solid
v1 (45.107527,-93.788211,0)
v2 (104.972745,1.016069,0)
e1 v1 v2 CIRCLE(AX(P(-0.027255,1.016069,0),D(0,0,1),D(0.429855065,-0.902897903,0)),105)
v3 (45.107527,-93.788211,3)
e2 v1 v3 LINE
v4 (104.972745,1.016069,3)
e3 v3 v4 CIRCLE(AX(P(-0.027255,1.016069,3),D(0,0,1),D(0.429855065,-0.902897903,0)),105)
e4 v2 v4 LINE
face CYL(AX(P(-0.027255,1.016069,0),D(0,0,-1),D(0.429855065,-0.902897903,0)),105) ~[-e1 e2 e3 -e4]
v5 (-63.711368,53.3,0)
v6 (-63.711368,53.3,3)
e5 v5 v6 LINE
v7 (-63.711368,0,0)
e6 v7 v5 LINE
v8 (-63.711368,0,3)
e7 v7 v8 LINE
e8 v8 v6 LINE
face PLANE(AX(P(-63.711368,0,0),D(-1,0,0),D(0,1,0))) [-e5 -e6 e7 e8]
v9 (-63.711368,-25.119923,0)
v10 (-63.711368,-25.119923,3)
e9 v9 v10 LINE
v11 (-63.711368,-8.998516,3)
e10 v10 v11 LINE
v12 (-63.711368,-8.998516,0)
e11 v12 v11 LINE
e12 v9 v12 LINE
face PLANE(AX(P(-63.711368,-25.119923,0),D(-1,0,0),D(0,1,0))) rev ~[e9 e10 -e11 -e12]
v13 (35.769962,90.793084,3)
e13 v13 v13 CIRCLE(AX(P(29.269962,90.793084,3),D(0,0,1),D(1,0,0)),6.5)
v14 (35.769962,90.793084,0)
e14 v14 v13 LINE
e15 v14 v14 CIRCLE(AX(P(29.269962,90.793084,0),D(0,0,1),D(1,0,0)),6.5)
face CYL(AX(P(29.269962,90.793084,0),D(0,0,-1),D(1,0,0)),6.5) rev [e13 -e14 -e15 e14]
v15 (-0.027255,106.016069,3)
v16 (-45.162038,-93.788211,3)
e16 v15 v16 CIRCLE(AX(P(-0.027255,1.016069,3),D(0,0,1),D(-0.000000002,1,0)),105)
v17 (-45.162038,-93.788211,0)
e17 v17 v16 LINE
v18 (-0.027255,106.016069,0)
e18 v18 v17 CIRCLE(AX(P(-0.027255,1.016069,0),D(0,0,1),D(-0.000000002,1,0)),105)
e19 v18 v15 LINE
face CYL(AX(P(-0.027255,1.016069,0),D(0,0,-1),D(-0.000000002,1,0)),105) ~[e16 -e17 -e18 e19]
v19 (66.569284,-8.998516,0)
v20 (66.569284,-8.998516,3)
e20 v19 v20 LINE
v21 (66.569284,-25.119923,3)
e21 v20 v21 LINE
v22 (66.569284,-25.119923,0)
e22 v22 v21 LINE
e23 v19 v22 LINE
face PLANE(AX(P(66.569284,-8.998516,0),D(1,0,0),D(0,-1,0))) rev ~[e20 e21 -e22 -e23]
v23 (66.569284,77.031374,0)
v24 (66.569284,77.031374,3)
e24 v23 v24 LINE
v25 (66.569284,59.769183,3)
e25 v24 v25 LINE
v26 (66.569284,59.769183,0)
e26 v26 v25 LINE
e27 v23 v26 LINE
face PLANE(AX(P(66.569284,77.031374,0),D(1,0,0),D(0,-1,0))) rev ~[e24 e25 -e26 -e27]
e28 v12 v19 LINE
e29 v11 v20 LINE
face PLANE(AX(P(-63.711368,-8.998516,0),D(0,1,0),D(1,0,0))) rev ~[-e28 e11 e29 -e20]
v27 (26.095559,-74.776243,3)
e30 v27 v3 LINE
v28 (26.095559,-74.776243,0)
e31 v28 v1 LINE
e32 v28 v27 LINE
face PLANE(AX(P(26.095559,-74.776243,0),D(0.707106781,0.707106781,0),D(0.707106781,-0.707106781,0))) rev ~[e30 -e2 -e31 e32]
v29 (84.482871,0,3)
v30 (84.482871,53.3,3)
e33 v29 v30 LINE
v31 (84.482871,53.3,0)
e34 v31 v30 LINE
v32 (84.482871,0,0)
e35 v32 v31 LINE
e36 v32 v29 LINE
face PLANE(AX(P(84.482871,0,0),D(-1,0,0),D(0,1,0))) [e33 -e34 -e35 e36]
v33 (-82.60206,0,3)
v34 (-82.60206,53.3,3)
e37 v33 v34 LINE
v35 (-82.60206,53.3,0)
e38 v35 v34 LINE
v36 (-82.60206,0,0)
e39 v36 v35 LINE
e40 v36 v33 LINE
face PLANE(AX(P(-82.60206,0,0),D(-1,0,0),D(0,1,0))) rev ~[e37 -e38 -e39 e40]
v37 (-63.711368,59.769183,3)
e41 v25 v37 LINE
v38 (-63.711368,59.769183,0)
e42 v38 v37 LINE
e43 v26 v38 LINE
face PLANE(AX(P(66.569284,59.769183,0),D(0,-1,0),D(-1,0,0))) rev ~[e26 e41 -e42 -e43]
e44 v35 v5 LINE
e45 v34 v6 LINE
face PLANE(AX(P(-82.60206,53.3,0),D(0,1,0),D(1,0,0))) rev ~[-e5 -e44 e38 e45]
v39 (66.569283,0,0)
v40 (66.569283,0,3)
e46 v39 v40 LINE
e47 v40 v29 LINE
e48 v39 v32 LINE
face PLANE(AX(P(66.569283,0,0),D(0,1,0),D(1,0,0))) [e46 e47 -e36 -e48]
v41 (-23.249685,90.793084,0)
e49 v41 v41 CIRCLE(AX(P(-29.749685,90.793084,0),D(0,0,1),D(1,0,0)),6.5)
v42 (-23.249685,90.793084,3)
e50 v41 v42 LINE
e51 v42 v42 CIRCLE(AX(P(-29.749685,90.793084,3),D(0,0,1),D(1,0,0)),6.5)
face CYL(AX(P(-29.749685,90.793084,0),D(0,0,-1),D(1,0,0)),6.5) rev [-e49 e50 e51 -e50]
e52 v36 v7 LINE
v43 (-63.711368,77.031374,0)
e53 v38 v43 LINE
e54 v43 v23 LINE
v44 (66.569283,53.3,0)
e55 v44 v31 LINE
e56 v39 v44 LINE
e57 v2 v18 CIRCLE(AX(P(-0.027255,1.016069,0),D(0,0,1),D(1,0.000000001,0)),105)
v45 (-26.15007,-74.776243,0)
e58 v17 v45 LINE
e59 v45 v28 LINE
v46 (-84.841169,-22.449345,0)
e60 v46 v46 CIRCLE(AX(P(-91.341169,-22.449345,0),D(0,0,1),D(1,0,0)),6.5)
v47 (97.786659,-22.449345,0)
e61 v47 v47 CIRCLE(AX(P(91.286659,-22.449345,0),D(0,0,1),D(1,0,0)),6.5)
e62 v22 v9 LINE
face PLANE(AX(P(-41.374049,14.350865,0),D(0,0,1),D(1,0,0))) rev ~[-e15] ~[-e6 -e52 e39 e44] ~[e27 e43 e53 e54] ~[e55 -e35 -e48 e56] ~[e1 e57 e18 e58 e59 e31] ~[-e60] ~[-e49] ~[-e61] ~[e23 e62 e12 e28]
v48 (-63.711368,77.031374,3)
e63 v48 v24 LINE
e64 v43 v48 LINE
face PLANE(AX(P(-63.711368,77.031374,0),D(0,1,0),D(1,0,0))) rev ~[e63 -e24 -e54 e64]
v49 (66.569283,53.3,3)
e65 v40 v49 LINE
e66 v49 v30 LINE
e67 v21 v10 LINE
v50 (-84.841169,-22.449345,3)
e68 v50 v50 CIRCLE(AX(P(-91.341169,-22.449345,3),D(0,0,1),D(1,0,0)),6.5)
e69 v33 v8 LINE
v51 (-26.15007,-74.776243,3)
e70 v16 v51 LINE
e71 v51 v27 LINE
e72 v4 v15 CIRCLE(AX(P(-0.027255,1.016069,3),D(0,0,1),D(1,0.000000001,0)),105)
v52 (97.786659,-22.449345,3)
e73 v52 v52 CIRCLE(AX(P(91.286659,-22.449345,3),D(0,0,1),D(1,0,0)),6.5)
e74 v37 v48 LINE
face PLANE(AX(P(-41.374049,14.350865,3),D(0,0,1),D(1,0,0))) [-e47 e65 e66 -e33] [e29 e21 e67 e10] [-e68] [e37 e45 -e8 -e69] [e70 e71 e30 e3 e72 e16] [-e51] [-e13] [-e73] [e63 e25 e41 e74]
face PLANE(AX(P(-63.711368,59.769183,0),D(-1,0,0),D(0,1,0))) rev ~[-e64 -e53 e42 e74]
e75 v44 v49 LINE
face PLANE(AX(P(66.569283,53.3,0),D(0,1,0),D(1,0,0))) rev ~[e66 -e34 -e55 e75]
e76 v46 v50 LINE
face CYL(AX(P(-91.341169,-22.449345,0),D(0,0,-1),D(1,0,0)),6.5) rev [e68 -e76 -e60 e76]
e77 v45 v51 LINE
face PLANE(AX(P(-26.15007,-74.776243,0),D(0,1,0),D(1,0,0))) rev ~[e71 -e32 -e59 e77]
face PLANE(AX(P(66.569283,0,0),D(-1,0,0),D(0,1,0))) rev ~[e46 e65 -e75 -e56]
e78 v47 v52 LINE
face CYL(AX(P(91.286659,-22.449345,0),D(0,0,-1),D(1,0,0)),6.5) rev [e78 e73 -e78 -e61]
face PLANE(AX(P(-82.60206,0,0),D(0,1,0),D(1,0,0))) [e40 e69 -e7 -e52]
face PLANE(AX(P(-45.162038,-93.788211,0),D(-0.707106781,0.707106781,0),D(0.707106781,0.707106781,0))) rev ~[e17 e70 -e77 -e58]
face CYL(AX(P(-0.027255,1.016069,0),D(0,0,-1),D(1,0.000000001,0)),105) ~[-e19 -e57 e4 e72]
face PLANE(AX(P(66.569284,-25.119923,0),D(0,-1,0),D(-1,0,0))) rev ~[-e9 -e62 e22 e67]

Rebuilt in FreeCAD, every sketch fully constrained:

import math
import FreeCAD as App
import Part
import Sketcher

doc = App.newDocument("Part")
params = doc.addObject("Spreadsheet::Sheet", "Params")
for row, (alias, value) in enumerate([
    ("sketch1_diameter", "13 mm"),
    ("sketch1_radius", "105 mm"),
    ("sketch1_height", "53.3 mm"),
    ("pad1_length", "3 mm"),
], start=1):
    params.set(f"A{row}", alias)
    params.set(f"B{row}", "=" + value)
    params.setAlias(f"B{row}", alias)

body = doc.addObject("PartDesign::Body", "Body")

sketch1 = body.newObject("Sketcher::SketchObject", "Sketch")
sketch1.AttachmentSupport = (doc.getObject("XY_Plane"), [""])
sketch1.MapMode = "FlatFace"
sketch1.addGeometry([
    Part.ArcOfCircle(Part.Circle(App.Vector(0, 1, 0), App.Vector(0, 0, 1), 105), math.radians(90), math.radians(245)),
    Part.LineSegment(App.Vector(-45, -94, 0), App.Vector(-26, -75, 0)),
    Part.LineSegment(App.Vector(-26, -75, 0), App.Vector(26, -75, 0)),
    Part.LineSegment(App.Vector(26, -75, 0), App.Vector(45, -94, 0)),
    Part.ArcOfCircle(Part.Circle(App.Vector(0, 1, 0), App.Vector(0, 0, 1), 105), math.radians(-65), math.radians(0)),
    Part.ArcOfCircle(Part.Circle(App.Vector(0, 1, 0), App.Vector(0, 0, 1), 105), math.radians(0), math.radians(90)),
    Part.Circle(App.Vector(-91, -22, 0), App.Vector(0, 0, 1), 6),
    Part.LineSegment(App.Vector(-64, 0, 0), App.Vector(-83, 0, 0)),
    Part.LineSegment(App.Vector(-83, 0, 0), App.Vector(-83, 53, 0)),
    Part.LineSegment(App.Vector(-83, 53, 0), App.Vector(-64, 53, 0)),
    Part.LineSegment(App.Vector(-64, 53, 0), App.Vector(-64, 0, 0)),
    Part.LineSegment(App.Vector(-64, -25, 0), App.Vector(-64, -9, 0)),
    Part.LineSegment(App.Vector(-64, -9, 0), App.Vector(67, -9, 0)),
    Part.LineSegment(App.Vector(67, -9, 0), App.Vector(67, -25, 0)),
    Part.LineSegment(App.Vector(67, -25, 0), App.Vector(-64, -25, 0)),
    Part.Circle(App.Vector(91, -22, 0), App.Vector(0, 0, 1), 6),
    Part.LineSegment(App.Vector(84, 0, 0), App.Vector(67, 0, 0)),
    Part.LineSegment(App.Vector(67, 0, 0), App.Vector(67, 53, 0)),
    Part.LineSegment(App.Vector(67, 53, 0), App.Vector(84, 53, 0)),
    Part.LineSegment(App.Vector(84, 53, 0), App.Vector(84, 0, 0)),
    Part.Circle(App.Vector(-30, 91, 0), App.Vector(0, 0, 1), 6),
    Part.LineSegment(App.Vector(-64, 77, 0), App.Vector(67, 77, 0)),
    Part.LineSegment(App.Vector(67, 77, 0), App.Vector(67, 60, 0)),
    Part.LineSegment(App.Vector(67, 60, 0), App.Vector(-64, 60, 0)),
    Part.LineSegment(App.Vector(-64, 60, 0), App.Vector(-64, 77, 0)),
    Part.Circle(App.Vector(29, 91, 0), App.Vector(0, 0, 1), 6),
], False)
sketch1.addConstraint([
    Sketcher.Constraint("Coincident", 0, 2, 1, 1),
    Sketcher.Constraint("Coincident", 1, 2, 2, 1),
    Sketcher.Constraint("Coincident", 2, 2, 3, 1),
    Sketcher.Constraint("Coincident", 3, 2, 4, 1),
    Sketcher.Constraint("Tangent", 4, 2, 5, 1),
    Sketcher.Constraint("Tangent", 5, 2, 0, 1),
    Sketcher.Constraint("Coincident", 7, 2, 8, 1),
    Sketcher.Constraint("Coincident", 8, 2, 9, 1),
    Sketcher.Constraint("Coincident", 9, 2, 10, 1),
    Sketcher.Constraint("Coincident", 10, 2, 7, 1),
    Sketcher.Constraint("Coincident", 11, 2, 12, 1),
    Sketcher.Constraint("Coincident", 12, 2, 13, 1),
    Sketcher.Constraint("Coincident", 13, 2, 14, 1),
    Sketcher.Constraint("Coincident", 14, 2, 11, 1),
    Sketcher.Constraint("Coincident", 16, 2, 17, 1),
    Sketcher.Constraint("Coincident", 17, 2, 18, 1),
    Sketcher.Constraint("Coincident", 18, 2, 19, 1),
    Sketcher.Constraint("Coincident", 19, 2, 16, 1),
    Sketcher.Constraint("Coincident", 21, 2, 22, 1),
    Sketcher.Constraint("Coincident", 22, 2, 23, 1),
    Sketcher.Constraint("Coincident", 23, 2, 24, 1),
    Sketcher.Constraint("Coincident", 24, 2, 21, 1),
    Sketcher.Constraint("Horizontal", 2),
    Sketcher.Constraint("Horizontal", 7),
    Sketcher.Constraint("Vertical", 8),
    Sketcher.Constraint("Horizontal", 9),
    Sketcher.Constraint("Vertical", 10),
    Sketcher.Constraint("Vertical", 11),
    Sketcher.Constraint("Horizontal", 12),
    Sketcher.Constraint("Vertical", 13),
    Sketcher.Constraint("Horizontal", 14),
    Sketcher.Constraint("Horizontal", 16),
    Sketcher.Constraint("Vertical", 17),
    Sketcher.Constraint("Horizontal", 18),
    Sketcher.Constraint("Vertical", 19),
    Sketcher.Constraint("Horizontal", 21),
    Sketcher.Constraint("Vertical", 22),
    Sketcher.Constraint("Horizontal", 23),
    Sketcher.Constraint("Vertical", 24),
    Sketcher.Constraint("Coincident", 4, 3, 0, 3),
    Sketcher.Constraint("Equal", 6, 15),
    Sketcher.Constraint("Equal", 15, 20),
    Sketcher.Constraint("Equal", 20, 25),
    Sketcher.Constraint("PointOnObject", 7, 2, -1),
    Sketcher.Constraint("PointOnObject", 16, 2, -1),
    Sketcher.Constraint("Perpendicular", 1, 3),
    Sketcher.Constraint("Horizontal", 6, 3, 15, 3),
    Sketcher.Constraint("Horizontal", 20, 3, 25, 3),
    Sketcher.Constraint("Horizontal", 0, 2, 3, 2),
    Sketcher.Constraint("Horizontal", 5, 3, 4, 2),
    Sketcher.Constraint("Horizontal", 9, 2, 17, 2),
    Sketcher.Constraint("Vertical", 4, 3, 5, 2),
    Sketcher.Constraint("Vertical", 10, 2, 11, 2),
    Sketcher.Constraint("Vertical", 13, 2, 16, 2),
    Sketcher.Constraint("Vertical", 17, 2, 21, 2),
    Sketcher.Constraint("Vertical", 14, 2, 23, 2),
    Sketcher.Constraint("Equal", 1, 3),
    Sketcher.Constraint("Diameter", 6, 13.0),
    Sketcher.Constraint("Radius", 0, 105.0),
    Sketcher.Constraint("DistanceY", 8, 1, 8, 2, 53.3),
    Sketcher.Constraint("DistanceX", 2, 1, 2, 2, 52.245629),
    Sketcher.Constraint("DistanceX", 12, 1, 12, 2, 130.280652),
    Sketcher.Constraint("DistanceY", 22, 2, 22, 1, 17.262191),
    Sketcher.Constraint("DistanceX", 6, 3, 1, 2, 65.191099),
    Sketcher.Constraint("DistanceX", 6, 3, 9, 2, 27.629801),
    Sketcher.Constraint("DistanceY", 22, 2, 25, 3, 31.023901),
    Sketcher.Constraint("DistanceX", 7, 2, 7, 1, 18.890693),
    Sketcher.Constraint("DistanceX", 16, 2, 16, 1, 17.913587),
    Sketcher.Constraint("DistanceY", 11, 1, 11, 2, 16.121407),
    Sketcher.Constraint("DistanceY", -1, 1, 0, 3, 1.016069),
    Sketcher.Constraint("DistanceX", 6, 3, -1, 1, 91.341169),
    Sketcher.Constraint("DistanceX", -1, 1, 15, 3, 91.286659),
    Sketcher.Constraint("DistanceX", -1, 1, 25, 3, 29.269962),
    Sketcher.Constraint("DistanceX", 0, 2, -1, 1, 45.162038),
    Sketcher.Constraint("DistanceX", 20, 3, 5, 3, 29.72243),
    Sketcher.Constraint("DistanceY", 6, 3, 20, 3, 113.242429),
    Sketcher.Constraint("DistanceY", 6, 3, 11, 2, 13.450829),
    Sketcher.Constraint("DistanceY", 2, 2, 13, 2, 49.65632),
])
sketch1.setExpression("Constraints[57]", "Params.sketch1_diameter")
sketch1.setExpression("Constraints[58]", "Params.sketch1_radius")
sketch1.setExpression("Constraints[59]", "Params.sketch1_height")
pad1 = body.newObject("PartDesign::Pad", "Pad")
pad1.Profile = sketch1
pad1.setExpression("Length", "Params.pad1_length")

doc.recompute()
